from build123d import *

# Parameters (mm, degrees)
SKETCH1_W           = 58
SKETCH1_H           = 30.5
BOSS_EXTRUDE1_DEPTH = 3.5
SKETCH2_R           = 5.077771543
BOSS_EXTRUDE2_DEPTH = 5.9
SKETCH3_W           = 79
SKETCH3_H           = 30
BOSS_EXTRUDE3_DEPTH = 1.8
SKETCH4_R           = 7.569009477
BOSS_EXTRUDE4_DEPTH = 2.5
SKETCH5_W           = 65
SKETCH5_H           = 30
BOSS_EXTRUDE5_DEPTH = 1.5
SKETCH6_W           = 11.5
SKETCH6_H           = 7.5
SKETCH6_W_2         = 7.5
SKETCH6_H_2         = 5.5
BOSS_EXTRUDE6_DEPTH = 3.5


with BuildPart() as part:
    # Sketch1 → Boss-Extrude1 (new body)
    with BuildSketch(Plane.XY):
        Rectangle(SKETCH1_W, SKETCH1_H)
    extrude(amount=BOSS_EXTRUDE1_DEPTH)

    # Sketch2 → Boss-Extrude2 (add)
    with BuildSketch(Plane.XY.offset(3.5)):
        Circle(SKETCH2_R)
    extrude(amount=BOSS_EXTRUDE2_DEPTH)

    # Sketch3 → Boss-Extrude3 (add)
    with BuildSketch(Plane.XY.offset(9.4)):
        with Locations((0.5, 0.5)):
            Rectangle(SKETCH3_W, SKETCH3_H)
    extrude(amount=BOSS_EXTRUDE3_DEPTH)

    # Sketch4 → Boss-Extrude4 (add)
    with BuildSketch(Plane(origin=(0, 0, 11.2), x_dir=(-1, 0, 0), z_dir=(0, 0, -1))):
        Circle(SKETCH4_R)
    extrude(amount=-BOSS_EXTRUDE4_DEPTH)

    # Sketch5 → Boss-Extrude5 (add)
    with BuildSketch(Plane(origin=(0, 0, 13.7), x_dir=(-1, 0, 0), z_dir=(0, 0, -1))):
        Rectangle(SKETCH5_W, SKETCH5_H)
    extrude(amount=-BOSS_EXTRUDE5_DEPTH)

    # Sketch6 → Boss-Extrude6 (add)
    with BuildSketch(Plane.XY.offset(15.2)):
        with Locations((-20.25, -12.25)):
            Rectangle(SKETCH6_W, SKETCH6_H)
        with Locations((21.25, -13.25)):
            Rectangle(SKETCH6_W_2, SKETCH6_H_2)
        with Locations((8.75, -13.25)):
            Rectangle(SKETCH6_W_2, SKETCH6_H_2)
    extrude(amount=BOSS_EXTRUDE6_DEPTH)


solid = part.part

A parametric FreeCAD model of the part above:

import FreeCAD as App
import Part
import Sketcher
from FreeCAD import Vector

doc = App.newDocument("Part")
body = doc.addObject("PartDesign::Body", "Body")

# Sketch on XY plane
sketch1 = body.newObject("Sketcher::SketchObject", "Sketch")
sketch1.AttachmentSupport = (doc.getObject("XY_Plane"), [""])
sketch1.MapMode = "FlatFace"
sketch1.addGeometry([
    Part.LineSegment(Vector(-29, 15, 0), Vector(-29, -15, 0)),
    Part.LineSegment(Vector(-29, -15, 0), Vector(29, -15, 0)),
    Part.LineSegment(Vector(29, -15, 0), Vector(29, 15, 0)),
    Part.LineSegment(Vector(29, 15, 0), Vector(-29, 15, 0)),
], False)
sketch1.addConstraint([
    Sketcher.Constraint("Coincident", 0, 2, 1, 1),
    Sketcher.Constraint("Coincident", 1, 2, 2, 1),
    Sketcher.Constraint("Coincident", 2, 2, 3, 1),
    Sketcher.Constraint("Coincident", 3, 2, 0, 1),
    Sketcher.Constraint("Vertical", 0),
    Sketcher.Constraint("Horizontal", 1),
    Sketcher.Constraint("Vertical", 2),
    Sketcher.Constraint("Horizontal", 3),
    Sketcher.Constraint("Symmetric", 0, 2, 2, 2, -1, 1),
    Sketcher.Constraint("DistanceX", 1, 1, 1, 2, 58.0),
    Sketcher.Constraint("DistanceY", 0, 2, 0, 1, 30.5),
])
pad1 = body.newObject("PartDesign::Pad", "Pad")
pad1.Profile = sketch1
pad1.Length = 3.5

# Sketch on XY plane
sketch2 = body.newObject("Sketcher::SketchObject", "Sketch001")
sketch2.AttachmentSupport = (doc.getObject("XY_Plane"), [""])
sketch2.MapMode = "FlatFace"
sketch2.AttachmentOffset = App.Placement(Vector(0, 0, 3.5), App.Rotation())
sketch2.addGeometry(Part.Circle(Vector(0, 0, 0), Vector(0, 0, 1), 5), False)
sketch2.addConstraint([
    Sketcher.Constraint("Coincident", 0, 3, -1, 1),
    Sketcher.Constraint("Diameter", 0, 10.155543),
])
pad2 = body.newObject("PartDesign::Pad", "Pad001")
pad2.Profile = sketch2
pad2.Length = 5.9

# Sketch on XY plane
sketch3 = body.newObject("Sketcher::SketchObject", "Sketch002")
sketch3.AttachmentSupport = (doc.getObject("XY_Plane"), [""])
sketch3.MapMode = "FlatFace"
sketch3.AttachmentOffset = App.Placement(Vector(0, 0, 9.4), App.Rotation())
sketch3.addGeometry([
    Part.LineSegment(Vector(-39, 16, 0), Vector(-39, -14, 0)),
    Part.LineSegment(Vector(-39, -14, 0), Vector(40, -14, 0)),
    Part.LineSegment(Vector(40, -14, 0), Vector(40, 16, 0)),
    Part.LineSegment(Vector(40, 16, 0), Vector(-39, 16, 0)),
], False)
sketch3.addConstraint([
    Sketcher.Constraint("Coincident", 0, 2, 1, 1),
    Sketcher.Constraint("Coincident", 1, 2, 2, 1),
    Sketcher.Constraint("Coincident", 2, 2, 3, 1),
    Sketcher.Constraint("Coincident", 3, 2, 0, 1),
    Sketcher.Constraint("Vertical", 0),
    Sketcher.Constraint("Horizontal", 1),
    Sketcher.Constraint("Vertical", 2),
    Sketcher.Constraint("Horizontal", 3),
    Sketcher.Constraint("DistanceX", 1, 1, 1, 2, 79.0),
    Sketcher.Constraint("DistanceY", 0, 2, 0, 1, 30.0),
    Sketcher.Constraint("DistanceX", 0, 2, -1, 1, 39.0),
    Sketcher.Constraint("DistanceY", 0, 2, -1, 1, 14.5),
])
pad3 = body.newObject("PartDesign::Pad", "Pad002")
pad3.Profile = sketch3
pad3.Length = 1.8

# Sketch on XY plane
sketch4 = body.newObject("Sketcher::SketchObject", "Sketch003")
sketch4.AttachmentSupport = (doc.getObject("XY_Plane"), [""])
sketch4.MapMode = "FlatFace"
sketch4.AttachmentOffset = App.Placement(Vector(0, 0, 11.2), App.Rotation())
sketch4.addGeometry(Part.Circle(Vector(0, 0, 0), Vector(0, 0, 1), 8), False)
sketch4.addConstraint([
    Sketcher.Constraint("Coincident", 0, 3, -1, 1),
    Sketcher.Constraint("Diameter", 0, 15.138019),
])
pad4 = body.newObject("PartDesign::Pad", "Pad003")
pad4.Profile = sketch4
pad4.Length = 2.5

# Sketch on XY plane
sketch5 = body.newObject("Sketcher::SketchObject", "Sketch004")
sketch5.AttachmentSupport = (doc.getObject("XY_Plane"), [""])
sketch5.MapMode = "FlatFace"
sketch5.AttachmentOffset = App.Placement(Vector(0, 0, 13.7), App.Rotation())
sketch5.addGeometry([
    Part.LineSegment(Vector(32, 15, 0), Vector(32, -15, 0)),
    Part.LineSegment(Vector(32, -15, 0), Vector(-32, -15, 0)),
    Part.LineSegment(Vector(-32, -15, 0), Vector(-32, 15, 0)),
    Part.LineSegment(Vector(-32, 15, 0), Vector(32, 15, 0)),
], False)
sketch5.addConstraint([
    Sketcher.Constraint("Coincident", 0, 2, 1, 1),
    Sketcher.Constraint("Coincident", 1, 2, 2, 1),
    Sketcher.Constraint("Coincident", 2, 2, 3, 1),
    Sketcher.Constraint("Coincident", 3, 2, 0, 1),
    Sketcher.Constraint("Vertical", 0),
    Sketcher.Constraint("Horizontal", 1),
    Sketcher.Constraint("Vertical", 2),
    Sketcher.Constraint("Horizontal", 3),
    Sketcher.Constraint("Symmetric", 0, 2, 2, 2, -1, 1),
    Sketcher.Constraint("DistanceX", 1, 2, 1, 1, 65.0),
    Sketcher.Constraint("DistanceY", 0, 2, 0, 1, 30.0),
])
pad5 = body.newObject("PartDesign::Pad", "Pad004")
pad5.Profile = sketch5
pad5.Length = 1.5

# Sketch on XY plane
sketch6 = body.newObject("Sketcher::SketchObject", "Sketch005")
sketch6.AttachmentSupport = (doc.getObject("XY_Plane"), [""])
sketch6.MapMode = "FlatFace"
sketch6.AttachmentOffset = App.Placement(Vector(0, 0, 15.2), App.Rotation())
sketch6.addGeometry([
    Part.LineSegment(Vector(-26, -8, 0), Vector(-26, -16, 0)),  # 0
    Part.LineSegment(Vector(-26, -16, 0), Vector(-14, -16, 0)),  # 1
    Part.LineSegment(Vector(-14, -16, 0), Vector(-14, -8, 0)),  # 2
    Part.LineSegment(Vector(-14, -8, 0), Vector(-26, -8, 0)),  # 3
    Part.LineSegment(Vector(18, -10, 0), Vector(18, -16, 0)),  # 4
    Part.LineSegment(Vector(18, -16, 0), Vector(25, -16, 0)),  # 5
    Part.LineSegment(Vector(25, -16, 0), Vector(25, -10, 0)),  # 6
    Part.LineSegment(Vector(25, -10, 0), Vector(18, -10, 0)),  # 7
    Part.LineSegment(Vector(5, -10, 0), Vector(5, -16, 0)),  # 8
    Part.LineSegment(Vector(5, -16, 0), Vector(12, -16, 0)),  # 9
    Part.LineSegment(Vector(12, -16, 0), Vector(12, -10, 0)),  # 10
    Part.LineSegment(Vector(12, -10, 0), Vector(5, -10, 0)),  # 11
], False)
sketch6.addConstraint([
    Sketcher.Constraint("Coincident", 0, 2, 1, 1),
    Sketcher.Constraint("Coincident", 1, 2, 2, 1),
    Sketcher.Constraint("Coincident", 2, 2, 3, 1),
    Sketcher.Constraint("Coincident", 3, 2, 0, 1),
    Sketcher.Constraint("Coincident", 4, 2, 5, 1),
    Sketcher.Constraint("Coincident", 5, 2, 6, 1),
    Sketcher.Constraint("Coincident", 6, 2, 7, 1),
    Sketcher.Constraint("Coincident", 7, 2, 4, 1),
    Sketcher.Constraint("Coincident", 8, 2, 9, 1),
    Sketcher.Constraint("Coincident", 9, 2, 10, 1),
    Sketcher.Constraint("Coincident", 10, 2, 11, 1),
    Sketcher.Constraint("Coincident", 11, 2, 8, 1),
    Sketcher.Constraint("Vertical", 0),
    Sketcher.Constraint("Horizontal", 1),
    Sketcher.Constraint("Vertical", 2),
    Sketcher.Constraint("Horizontal", 3),
    Sketcher.Constraint("Vertical", 4),
    Sketcher.Constraint("Horizontal", 5),
    Sketcher.Constraint("Vertical", 6),
    Sketcher.Constraint("Horizontal", 7),
    Sketcher.Constraint("Vertical", 8),
    Sketcher.Constraint("Horizontal", 9),
    Sketcher.Constraint("Vertical", 10),
    Sketcher.Constraint("Horizontal", 11),
    Sketcher.Constraint("Horizontal", 1, 2, 4, 2),
    Sketcher.Constraint("Horizontal", 5, 2, 8, 2),
    Sketcher.Constraint("Horizontal", 7, 2, 10, 2),
    Sketcher.Constraint("Equal", 7, 9),
    Sketcher.Constraint("Equal", 11, 0),
    Sketcher.Constraint("DistanceX", 1, 1, 1, 2, 11.5),
    Sketcher.Constraint("DistanceX", 5, 1, 5, 2, 7.5),
    Sketcher.Constraint("DistanceY", 4, 2, 4, 1, 5.5),
    Sketcher.Constraint("DistanceX", 0, 2, -1, 1, 26.0),
    Sketcher.Constraint("DistanceY", 0, 2, -1, 1, 16.0),
    Sketcher.Constraint("DistanceX", -1, 1, 5, 2, 25.0),
    Sketcher.Constraint("DistanceX", -1, 1, 8, 2, 5.0),
])
pad6 = body.newObject("PartDesign::Pad", "Pad005")
pad6.Profile = sketch6
pad6.Length = 3.5

doc.recompute()
